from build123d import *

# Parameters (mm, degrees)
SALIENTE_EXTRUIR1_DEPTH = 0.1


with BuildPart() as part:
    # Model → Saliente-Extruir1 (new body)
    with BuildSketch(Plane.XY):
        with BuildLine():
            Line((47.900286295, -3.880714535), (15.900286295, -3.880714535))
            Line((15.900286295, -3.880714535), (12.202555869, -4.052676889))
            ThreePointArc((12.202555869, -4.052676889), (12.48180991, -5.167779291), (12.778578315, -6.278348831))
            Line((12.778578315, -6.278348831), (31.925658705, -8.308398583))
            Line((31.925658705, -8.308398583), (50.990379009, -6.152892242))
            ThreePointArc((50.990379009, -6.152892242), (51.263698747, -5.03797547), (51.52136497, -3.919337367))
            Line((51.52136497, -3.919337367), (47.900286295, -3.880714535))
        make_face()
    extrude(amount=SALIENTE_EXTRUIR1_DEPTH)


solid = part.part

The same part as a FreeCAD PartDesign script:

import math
import FreeCAD as App
import Part
import Sketcher

V = App.Vector
Q = App.Units.Quantity

doc = App.newDocument("Part")
body = doc.addObject("PartDesign::Body", "Body")

# Sketch on XY plane
sketch1 = body.newObject("Sketcher::SketchObject", "Sketch")
sketch1.AttachmentSupport = (doc.getObject("XY_Plane"), [""])
sketch1.MapMode = "FlatFace"
sketch1.addGeometry(Part.LineSegment(V(47.9, -3.9, 0), V(15.9, -3.9, 0)), False)
sketch1.addGeometry(Part.LineSegment(V(15.9, -3.9, 0), V(12.2, -4.1, 0)), False)
sketch1.addGeometry(Part.ArcOfCircle(Part.Circle(V(83.2, 13.1, 0), V(0, 0, 1), 73), math.radians(-166.39), math.radians(-164.59)), False)
sketch1.addGeometry(Part.LineSegment(V(12.8, -6.3, 0), V(31.9, -8.3, 0)), False)
sketch1.addGeometry(Part.LineSegment(V(31.9, -8.3, 0), V(51, -6.2, 0)), False)
sketch1.addGeometry(Part.ArcOfCircle(Part.Circle(V(-28.4, 13.9, 0), V(0, 0, 1), 81.9), math.radians(-14.18), math.radians(-12.57)), False)
sketch1.addGeometry(Part.LineSegment(V(51.5, -3.9, 0), V(47.9, -3.9, 0)), False)
sketch1.addConstraint(Sketcher.Constraint("Coincident", 0, 2, 1, 1))
sketch1.addConstraint(Sketcher.Constraint("Coincident", 1, 2, 2, 1))
sketch1.addConstraint(Sketcher.Constraint("Coincident", 2, 2, 3, 1))
sketch1.addConstraint(Sketcher.Constraint("Coincident", 3, 2, 4, 1))
sketch1.addConstraint(Sketcher.Constraint("Coincident", 4, 2, 5, 1))
sketch1.addConstraint(Sketcher.Constraint("Coincident", 5, 2, 6, 1))
sketch1.addConstraint(Sketcher.Constraint("Coincident", 6, 2, 0, 1))
sketch1.addConstraint(Sketcher.Constraint("Horizontal", 0))
sketch1.addConstraint(Sketcher.Constraint("DistanceX", 0, 2, 0, 1, Q("32 mm")))
sketch1.addConstraint(Sketcher.Constraint("Radius", 2, Q("73.042114 mm")))
sketch1.addConstraint(Sketcher.Constraint("Radius", 5, Q("81.899414 mm")))
sketch1.addConstraint(Sketcher.Constraint("DistanceY", 3, 2, -1, 1, Q("8.308399 mm")))
sketch1.addConstraint(Sketcher.Constraint("DistanceX", 2, 2, 4, 2, Q("38.211801 mm")))
sketch1.addConstraint(Sketcher.Constraint("DistanceX", -1, 1, 2, 3, Q("83.19409 mm")))
sketch1.addConstraint(Sketcher.Constraint("DistanceY", -1, 1, 2, 3, Q("13.133148 mm")))
sketch1.addConstraint(Sketcher.Constraint("DistanceX", 5, 3, -1, 1, Q("28.415089 mm")))
sketch1.addConstraint(Sketcher.Constraint("DistanceY", -1, 1, 5, 3, Q("13.904168 mm")))
sketch1.addConstraint(Sketcher.Constraint("DistanceX", -1, 1, 2, 2, Q("12.778578 mm")))
sketch1.addConstraint(Sketcher.Constraint("DistanceX", -1, 1, 3, 2, Q("31.925659 mm")))
sketch1.addConstraint(Sketcher.Constraint("DistanceX", 1, 2, 0, 2, Q("3.69773 mm")))
sketch1.addConstraint(Sketcher.Constraint("DistanceY", 2, 2, 1, 2, Q("2.225672 mm")))
sketch1.addConstraint(Sketcher.Constraint("DistanceY", 3, 2, 5, 2, Q("4.389061 mm")))
sketch1.addConstraint(Sketcher.Constraint("Distance", 1, Q("3.701727 mm")))
pad1 = body.newObject("PartDesign::Pad", "Pad")
pad1.Profile = sketch1
pad1.Length = 0.1

doc.recompute()
